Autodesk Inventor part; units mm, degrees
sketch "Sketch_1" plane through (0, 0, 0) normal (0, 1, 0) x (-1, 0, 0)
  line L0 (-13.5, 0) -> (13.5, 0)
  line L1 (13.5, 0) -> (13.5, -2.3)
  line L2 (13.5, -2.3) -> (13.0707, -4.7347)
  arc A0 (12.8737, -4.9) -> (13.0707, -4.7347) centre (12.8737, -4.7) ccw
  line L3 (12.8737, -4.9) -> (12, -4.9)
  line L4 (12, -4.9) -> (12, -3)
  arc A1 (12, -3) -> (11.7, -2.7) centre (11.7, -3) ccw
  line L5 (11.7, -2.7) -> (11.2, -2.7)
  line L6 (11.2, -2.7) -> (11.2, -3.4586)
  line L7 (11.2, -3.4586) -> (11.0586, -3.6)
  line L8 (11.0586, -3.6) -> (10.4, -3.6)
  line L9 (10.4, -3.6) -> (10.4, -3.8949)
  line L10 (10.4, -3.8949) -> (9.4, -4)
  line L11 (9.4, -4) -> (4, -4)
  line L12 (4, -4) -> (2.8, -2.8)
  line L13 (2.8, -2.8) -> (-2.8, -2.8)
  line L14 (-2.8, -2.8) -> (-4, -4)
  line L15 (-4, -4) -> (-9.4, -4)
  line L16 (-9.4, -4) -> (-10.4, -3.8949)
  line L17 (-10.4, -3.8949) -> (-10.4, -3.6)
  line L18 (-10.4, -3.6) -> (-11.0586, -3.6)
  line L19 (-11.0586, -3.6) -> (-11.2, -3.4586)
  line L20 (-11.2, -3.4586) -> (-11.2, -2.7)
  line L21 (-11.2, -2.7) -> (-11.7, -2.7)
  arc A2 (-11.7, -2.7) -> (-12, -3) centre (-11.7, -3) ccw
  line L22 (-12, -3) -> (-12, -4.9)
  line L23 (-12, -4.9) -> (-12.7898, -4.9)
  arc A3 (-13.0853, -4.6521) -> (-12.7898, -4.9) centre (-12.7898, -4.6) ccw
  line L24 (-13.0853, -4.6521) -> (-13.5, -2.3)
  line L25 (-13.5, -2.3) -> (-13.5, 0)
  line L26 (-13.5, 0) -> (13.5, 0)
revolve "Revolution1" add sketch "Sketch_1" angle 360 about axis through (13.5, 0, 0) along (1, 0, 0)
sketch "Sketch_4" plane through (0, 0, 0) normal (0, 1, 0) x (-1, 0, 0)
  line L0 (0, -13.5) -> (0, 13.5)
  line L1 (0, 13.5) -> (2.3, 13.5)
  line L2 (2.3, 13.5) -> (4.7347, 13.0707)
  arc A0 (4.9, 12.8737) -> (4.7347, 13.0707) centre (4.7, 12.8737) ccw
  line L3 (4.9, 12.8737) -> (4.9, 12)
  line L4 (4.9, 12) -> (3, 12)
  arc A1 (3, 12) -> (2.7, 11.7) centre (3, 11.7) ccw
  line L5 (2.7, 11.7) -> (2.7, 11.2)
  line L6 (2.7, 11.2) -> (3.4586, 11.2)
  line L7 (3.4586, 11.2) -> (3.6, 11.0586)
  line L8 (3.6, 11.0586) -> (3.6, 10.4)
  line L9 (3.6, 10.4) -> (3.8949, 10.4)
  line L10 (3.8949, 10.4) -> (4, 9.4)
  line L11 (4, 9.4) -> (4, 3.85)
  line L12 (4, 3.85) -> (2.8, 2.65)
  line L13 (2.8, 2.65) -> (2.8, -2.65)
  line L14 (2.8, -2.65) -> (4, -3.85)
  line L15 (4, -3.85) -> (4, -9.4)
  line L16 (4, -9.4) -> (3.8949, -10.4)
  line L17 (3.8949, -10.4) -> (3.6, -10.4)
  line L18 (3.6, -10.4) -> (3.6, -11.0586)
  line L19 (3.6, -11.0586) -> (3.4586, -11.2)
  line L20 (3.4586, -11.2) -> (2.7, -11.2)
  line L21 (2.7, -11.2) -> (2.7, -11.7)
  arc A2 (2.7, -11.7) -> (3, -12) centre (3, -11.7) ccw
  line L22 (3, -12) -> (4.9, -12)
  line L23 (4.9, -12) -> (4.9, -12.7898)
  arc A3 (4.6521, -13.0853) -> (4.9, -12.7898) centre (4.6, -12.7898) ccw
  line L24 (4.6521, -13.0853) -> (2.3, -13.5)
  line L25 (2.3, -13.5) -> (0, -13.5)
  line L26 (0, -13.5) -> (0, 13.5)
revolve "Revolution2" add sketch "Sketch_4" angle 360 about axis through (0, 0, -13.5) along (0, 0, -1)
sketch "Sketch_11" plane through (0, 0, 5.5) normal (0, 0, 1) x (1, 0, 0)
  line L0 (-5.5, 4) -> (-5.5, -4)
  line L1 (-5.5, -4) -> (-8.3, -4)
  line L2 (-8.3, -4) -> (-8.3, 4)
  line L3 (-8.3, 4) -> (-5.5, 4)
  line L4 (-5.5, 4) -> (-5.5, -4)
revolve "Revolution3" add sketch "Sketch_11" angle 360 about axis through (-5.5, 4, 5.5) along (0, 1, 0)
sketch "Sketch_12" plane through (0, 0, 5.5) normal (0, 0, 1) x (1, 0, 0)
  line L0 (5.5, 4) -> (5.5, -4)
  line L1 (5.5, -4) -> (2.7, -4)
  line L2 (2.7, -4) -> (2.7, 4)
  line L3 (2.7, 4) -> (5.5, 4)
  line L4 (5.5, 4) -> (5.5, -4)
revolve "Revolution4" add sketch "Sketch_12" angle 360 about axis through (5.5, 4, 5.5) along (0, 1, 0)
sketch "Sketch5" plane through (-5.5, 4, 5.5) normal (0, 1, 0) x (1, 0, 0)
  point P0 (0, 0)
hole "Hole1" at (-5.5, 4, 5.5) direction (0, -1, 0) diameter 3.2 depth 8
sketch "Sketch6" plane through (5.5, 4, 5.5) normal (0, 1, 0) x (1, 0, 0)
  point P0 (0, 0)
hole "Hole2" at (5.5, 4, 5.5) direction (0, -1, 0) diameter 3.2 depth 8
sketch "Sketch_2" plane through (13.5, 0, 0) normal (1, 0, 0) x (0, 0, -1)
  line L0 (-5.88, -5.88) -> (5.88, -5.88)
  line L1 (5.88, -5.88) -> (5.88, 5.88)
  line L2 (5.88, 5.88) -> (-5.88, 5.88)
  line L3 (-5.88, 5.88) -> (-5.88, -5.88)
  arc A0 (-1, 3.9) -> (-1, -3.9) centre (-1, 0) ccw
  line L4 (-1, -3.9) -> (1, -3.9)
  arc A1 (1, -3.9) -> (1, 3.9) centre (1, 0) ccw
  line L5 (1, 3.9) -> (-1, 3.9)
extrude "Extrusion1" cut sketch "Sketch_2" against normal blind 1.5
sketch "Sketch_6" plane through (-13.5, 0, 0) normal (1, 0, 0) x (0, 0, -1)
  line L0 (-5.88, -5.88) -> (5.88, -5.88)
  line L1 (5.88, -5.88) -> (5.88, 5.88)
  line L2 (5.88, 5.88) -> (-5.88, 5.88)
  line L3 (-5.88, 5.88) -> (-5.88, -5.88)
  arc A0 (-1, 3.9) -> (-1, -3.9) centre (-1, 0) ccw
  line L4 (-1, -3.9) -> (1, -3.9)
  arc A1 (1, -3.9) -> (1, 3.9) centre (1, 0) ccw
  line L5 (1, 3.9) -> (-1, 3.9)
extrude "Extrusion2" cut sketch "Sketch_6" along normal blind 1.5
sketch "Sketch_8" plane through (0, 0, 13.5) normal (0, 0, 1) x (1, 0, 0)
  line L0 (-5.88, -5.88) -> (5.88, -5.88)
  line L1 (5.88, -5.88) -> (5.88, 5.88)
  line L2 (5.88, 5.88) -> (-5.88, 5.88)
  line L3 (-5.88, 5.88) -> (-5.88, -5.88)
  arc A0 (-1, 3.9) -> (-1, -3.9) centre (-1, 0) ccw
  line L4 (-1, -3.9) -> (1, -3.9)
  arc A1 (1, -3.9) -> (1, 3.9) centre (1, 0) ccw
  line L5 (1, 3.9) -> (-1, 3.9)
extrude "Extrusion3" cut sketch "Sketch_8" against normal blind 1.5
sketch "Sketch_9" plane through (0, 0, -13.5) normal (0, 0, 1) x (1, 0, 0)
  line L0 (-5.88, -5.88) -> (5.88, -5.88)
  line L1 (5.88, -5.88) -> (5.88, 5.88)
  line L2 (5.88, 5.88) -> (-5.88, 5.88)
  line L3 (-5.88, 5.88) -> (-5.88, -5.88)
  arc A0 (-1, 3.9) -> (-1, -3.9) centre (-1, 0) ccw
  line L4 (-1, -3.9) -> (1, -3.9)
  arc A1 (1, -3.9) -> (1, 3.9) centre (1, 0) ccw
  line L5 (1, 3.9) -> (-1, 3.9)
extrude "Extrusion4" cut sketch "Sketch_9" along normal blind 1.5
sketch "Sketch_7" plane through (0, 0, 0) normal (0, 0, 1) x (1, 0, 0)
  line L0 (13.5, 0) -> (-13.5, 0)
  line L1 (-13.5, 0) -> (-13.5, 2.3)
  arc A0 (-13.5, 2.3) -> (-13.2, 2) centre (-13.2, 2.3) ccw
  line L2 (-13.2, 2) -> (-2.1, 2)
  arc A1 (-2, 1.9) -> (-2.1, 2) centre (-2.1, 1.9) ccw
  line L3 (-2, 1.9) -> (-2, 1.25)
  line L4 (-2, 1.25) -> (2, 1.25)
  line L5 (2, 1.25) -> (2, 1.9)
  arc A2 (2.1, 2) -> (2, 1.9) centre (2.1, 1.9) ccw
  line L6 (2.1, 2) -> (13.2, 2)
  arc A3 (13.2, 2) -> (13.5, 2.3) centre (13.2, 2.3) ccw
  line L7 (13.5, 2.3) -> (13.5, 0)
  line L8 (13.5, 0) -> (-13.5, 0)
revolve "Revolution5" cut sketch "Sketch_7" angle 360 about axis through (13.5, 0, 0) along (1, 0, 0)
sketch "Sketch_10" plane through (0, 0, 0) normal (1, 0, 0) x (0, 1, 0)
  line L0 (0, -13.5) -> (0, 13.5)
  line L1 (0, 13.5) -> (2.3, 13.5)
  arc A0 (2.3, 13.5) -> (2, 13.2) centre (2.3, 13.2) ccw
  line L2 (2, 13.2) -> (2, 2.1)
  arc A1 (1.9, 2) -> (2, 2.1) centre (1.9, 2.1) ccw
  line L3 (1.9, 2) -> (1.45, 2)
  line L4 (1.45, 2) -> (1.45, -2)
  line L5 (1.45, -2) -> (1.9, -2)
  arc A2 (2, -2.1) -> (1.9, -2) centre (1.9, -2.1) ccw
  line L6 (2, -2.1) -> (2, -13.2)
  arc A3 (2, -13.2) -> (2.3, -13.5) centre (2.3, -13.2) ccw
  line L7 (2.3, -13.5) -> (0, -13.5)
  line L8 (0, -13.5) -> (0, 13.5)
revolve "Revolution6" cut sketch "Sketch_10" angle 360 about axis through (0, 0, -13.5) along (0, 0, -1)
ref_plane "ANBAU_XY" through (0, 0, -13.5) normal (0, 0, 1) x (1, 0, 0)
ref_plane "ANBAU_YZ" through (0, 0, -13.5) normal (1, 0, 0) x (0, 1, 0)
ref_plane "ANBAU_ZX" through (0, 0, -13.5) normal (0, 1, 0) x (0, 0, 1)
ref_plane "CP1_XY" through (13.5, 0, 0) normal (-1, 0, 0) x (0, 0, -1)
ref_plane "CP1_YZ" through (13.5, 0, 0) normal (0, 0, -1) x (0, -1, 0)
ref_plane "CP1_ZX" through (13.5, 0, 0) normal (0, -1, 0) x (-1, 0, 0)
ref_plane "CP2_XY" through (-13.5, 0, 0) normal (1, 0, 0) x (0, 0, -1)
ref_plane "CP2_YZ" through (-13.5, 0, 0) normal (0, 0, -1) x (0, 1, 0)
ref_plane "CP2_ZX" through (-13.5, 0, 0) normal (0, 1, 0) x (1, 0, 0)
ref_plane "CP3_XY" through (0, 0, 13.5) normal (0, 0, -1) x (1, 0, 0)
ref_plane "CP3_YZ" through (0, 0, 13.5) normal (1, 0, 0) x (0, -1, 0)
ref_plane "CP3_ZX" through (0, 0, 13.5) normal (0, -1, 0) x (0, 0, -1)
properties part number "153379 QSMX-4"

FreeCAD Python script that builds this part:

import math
import FreeCAD as App
import Part
import Sketcher
from FreeCAD import Vector
Q = App.Units.Quantity


def add_polygon(sketch, points):
    """Adds a closed chain of lines whose ends are joined by coincident constraints."""
    first, n = sketch.GeometryCount, len(points)
    for a, b in zip(points, points[1:] + points[:1]):
        sketch.addGeometry(Part.LineSegment(App.Vector(*a, 0), App.Vector(*b, 0)), False)
    for i in range(n):
        sketch.addConstraint(Sketcher.Constraint("Coincident", first + i, 2, first + (i + 1) % n, 1))

doc = App.newDocument("Part")
body = doc.addObject("PartDesign::Body", "Body")

sketch1 = body.newObject("Sketcher::SketchObject", "Sketch")
sketch1.AttachmentSupport = (doc.getObject("XZ_Plane"), [""])
sketch1.MapMode = "FlatFace"
sketch1.addGeometry([
    Part.LineSegment(Vector(-13.5, 0, 0), Vector(13.5, 0, 0)),
    Part.LineSegment(Vector(13.5, 0, 0), Vector(13.5, -2.3, 0)),
    Part.LineSegment(Vector(13.5, -2.3, 0), Vector(13.0853, -4.6521, 0)),
    Part.ArcOfCircle(Part.Circle(Vector(12.7898, -4.6, 0), Vector(0, 0, 1), 0.300058), math.radians(-90), math.radians(-9.999131)),
    Part.LineSegment(Vector(12.7898, -4.9, 0), Vector(12, -4.9, 0)),
    Part.LineSegment(Vector(12, -4.9, 0), Vector(12, -3, 0)),
    Part.ArcOfCircle(Part.Circle(Vector(11.7, -3, 0), Vector(0, 0, 1), 0.3), math.radians(0), math.radians(90)),
    Part.LineSegment(Vector(11.7, -2.7, 0), Vector(11.2, -2.7, 0)),
    Part.LineSegment(Vector(11.2, -2.7, 0), Vector(11.2, -3.4586, 0)),
    Part.LineSegment(Vector(11.2, -3.4586, 0), Vector(11.0586, -3.6, 0)),
    Part.LineSegment(Vector(11.0586, -3.6, 0), Vector(10.4, -3.6, 0)),
    Part.LineSegment(Vector(10.4, -3.6, 0), Vector(10.4, -3.8949, 0)),
    Part.LineSegment(Vector(10.4, -3.8949, 0), Vector(9.4, -4, 0)),
    Part.LineSegment(Vector(9.4, -4, 0), Vector(4, -4, 0)),
    Part.LineSegment(Vector(4, -4, 0), Vector(2.8, -2.8, 0)),
    Part.LineSegment(Vector(2.8, -2.8, 0), Vector(-2.8, -2.8, 0)),
    Part.LineSegment(Vector(-2.8, -2.8, 0), Vector(-4, -4, 0)),
    Part.LineSegment(Vector(-4, -4, 0), Vector(-9.4, -4, 0)),
    Part.LineSegment(Vector(-9.4, -4, 0), Vector(-10.4, -3.8949, 0)),
    Part.LineSegment(Vector(-10.4, -3.8949, 0), Vector(-10.4, -3.6, 0)),
    Part.LineSegment(Vector(-10.4, -3.6, 0), Vector(-11.0586, -3.6, 0)),
    Part.LineSegment(Vector(-11.0586, -3.6, 0), Vector(-11.2, -3.4586, 0)),
    Part.LineSegment(Vector(-11.2, -3.4586, 0), Vector(-11.2, -2.7, 0)),
    Part.LineSegment(Vector(-11.2, -2.7, 0), Vector(-11.7, -2.7, 0)),
    Part.ArcOfCircle(Part.Circle(Vector(-11.7, -3, 0), Vector(0, 0, 1), 0.3), math.radians(90), math.radians(180)),
    Part.LineSegment(Vector(-12, -3, 0), Vector(-12, -4.9, 0)),
    Part.LineSegment(Vector(-12, -4.9, 0), Vector(-12.8737, -4.9, 0)),
    Part.ArcOfCircle(Part.Circle(Vector(-12.8737, -4.7, 0), Vector(0, 0, 1), 0.2), math.radians(-170.010272), math.radians(-90)),
    Part.LineSegment(Vector(-13.0707, -4.7347, 0), Vector(-13.5, -2.3, 0)),
    Part.LineSegment(Vector(-13.5, -2.3, 0), Vector(-13.5, 0, 0)),
], False)
sketch1.addConstraint([
    Sketcher.Constraint("Coincident", 0, 2, 1, 1),
    Sketcher.Constraint("Coincident", 1, 2, 2, 1),
    Sketcher.Constraint("Tangent", 2, 2, 3, 2),
    Sketcher.Constraint("Tangent", 3, 1, 4, 1),
    Sketcher.Constraint("Coincident", 4, 2, 5, 1),
    Sketcher.Constraint("Tangent", 5, 2, 6, 1),
    Sketcher.Constraint("Tangent", 6, 2, 7, 1),
    Sketcher.Constraint("Coincident", 7, 2, 8, 1),
    Sketcher.Constraint("Coincident", 8, 2, 9, 1),
    Sketcher.Constraint("Coincident", 9, 2, 10, 1),
    Sketcher.Constraint("Coincident", 10, 2, 11, 1),
    Sketcher.Constraint("Coincident", 11, 2, 12, 1),
    Sketcher.Constraint("Coincident", 12, 2, 13, 1),
    Sketcher.Constraint("Coincident", 13, 2, 14, 1),
    Sketcher.Constraint("Coincident", 14, 2, 15, 1),
    Sketcher.Constraint("Coincident", 15, 2, 16, 1),
    Sketcher.Constraint("Coincident", 16, 2, 17, 1),
    Sketcher.Constraint("Coincident", 17, 2, 18, 1),
    Sketcher.Constraint("Coincident", 18, 2, 19, 1),
    Sketcher.Constraint("Coincident", 19, 2, 20, 1),
    Sketcher.Constraint("Coincident", 20, 2, 21, 1),
    Sketcher.Constraint("Coincident", 21, 2, 22, 1),
    Sketcher.Constraint("Coincident", 22, 2, 23, 1),
    Sketcher.Constraint("Tangent", 23, 2, 24, 1),
    Sketcher.Constraint("Tangent", 24, 2, 25, 1),
    Sketcher.Constraint("Coincident", 25, 2, 26, 1),
    Sketcher.Constraint("Tangent", 26, 2, 27, 2),
    Sketcher.Constraint("Tangent", 27, 1, 28, 1),
    Sketcher.Constraint("Coincident", 28, 2, 29, 1),
    Sketcher.Constraint("Coincident", 29, 2, 0, 1),
    Sketcher.Constraint("Horizontal", 0),
    Sketcher.Constraint("Vertical", 1),
    Sketcher.Constraint("Horizontal", 4),
    Sketcher.Constraint("Vertical", 5),
    Sketcher.Constraint("Horizontal", 7),
    Sketcher.Constraint("Vertical", 8),
    Sketcher.Constraint("Horizontal", 10),
    Sketcher.Constraint("Vertical", 11),
    Sketcher.Constraint("Horizontal", 13),
    Sketcher.Constraint("Horizontal", 15),
    Sketcher.Constraint("Horizontal", 17),
    Sketcher.Constraint("Vertical", 19),
    Sketcher.Constraint("Horizontal", 20),
    Sketcher.Constraint("Vertical", 22),
    Sketcher.Constraint("Horizontal", 23),
    Sketcher.Constraint("Vertical", 25),
    Sketcher.Constraint("Horizontal", 26),
    Sketcher.Constraint("Vertical", 29),
    Sketcher.Constraint("Equal", 3, 6),
    Sketcher.Constraint("Equal", 6, 24),
    Sketcher.Constraint("Symmetric", 0, 2, 29, 2, -1, 1),
    Sketcher.Constraint("Symmetric", 6, 3, 24, 3, -2),
    Sketcher.Constraint("Symmetric", 13, 2, 16, 2, -2),
    Sketcher.Constraint("Symmetric", 11, 2, 18, 2, -2),
    Sketcher.Constraint("Symmetric", 9, 2, 20, 2, -2),
    Sketcher.Constraint("Symmetric", 8, 2, 21, 2, -2),
    Sketcher.Constraint("Perpendicular", 9, 14),
    Sketcher.Constraint("Perpendicular", 14, 16),
    Sketcher.Constraint("Perpendicular", 16, 21),
    Sketcher.Constraint("Horizontal", 4, 2, 25, 2),
    Sketcher.Constraint("Horizontal", 1, 2, 28, 2),
    Sketcher.Constraint("Equal", 13, 17),
    Sketcher.Constraint("Radius", 3, Q("0.3 mm")),
    Sketcher.Constraint("Radius", 27, Q("0.2 mm")),
    Sketcher.Constraint("DistanceX", 0, 1, 0, 2, Q("27 mm")),
    Sketcher.Constraint("Angle", 2, Q("-99.999 deg")),
    Sketcher.Constraint("Angle", 12, Q("-174.0002 deg")),
    Sketcher.Constraint("Angle", 28, Q("100 deg")),
    Sketcher.Constraint("DistanceX", 7, 2, 7, 1, Q("0.5 mm")),
    Sketcher.Constraint("DistanceX", 13, 2, 13, 1, Q("5.4 mm")),
    Sketcher.Constraint("DistanceX", 15, 2, 15, 1, Q("5.6 mm")),
    Sketcher.Constraint("DistanceY", 1, 2, 1, 1, Q("2.3 mm")),
    Sketcher.Constraint("DistanceY", 5, 1, 5, 2, Q("1.9 mm")),
    Sketcher.Constraint("DistanceY", 6, 3, -1, 1, Q("3 mm")),
    Sketcher.Constraint("DistanceX", -1, 1, 4, 2, Q("12 mm")),
    Sketcher.Constraint("DistanceY", 12, 2, -1, 1, Q("4 mm")),
    Sketcher.Constraint("DistanceX", -1, 1, 13, 2, Q("4 mm")),
    Sketcher.Constraint("DistanceX", 12, 2, 11, 2, Q("1 mm")),
    Sketcher.Constraint("Distance", 9, Q("0.2 mm")),
    Sketcher.Constraint("DistanceY", 9, 2, -1, 1, Q("3.6 mm")),
])
revolution = body.newObject("PartDesign::Revolution", "Revolution")
revolution.Profile = sketch1
revolution.ReferenceAxis = (sketch1, ["H_Axis"])
revolution.Angle = 360

sketch2 = body.newObject("Sketcher::SketchObject", "Sketch001")
sketch2.AttachmentSupport = (doc.getObject("XZ_Plane"), [""])
sketch2.MapMode = "FlatFace"
sketch2.addGeometry([
    Part.LineSegment(Vector(0, 13.5, 0), Vector(0, -13.5, 0)),
    Part.LineSegment(Vector(0, -13.5, 0), Vector(-2.3, -13.5, 0)),
    Part.LineSegment(Vector(-2.3, -13.5, 0), Vector(-4.6521, -13.0853, 0)),
    Part.ArcOfCircle(Part.Circle(Vector(-4.6, -12.7898, 0), Vector(0, 0, 1), 0.300058), math.radians(180), math.radians(260.000869)),
    Part.LineSegment(Vector(-4.9, -12.7898, 0), Vector(-4.9, -12, 0)),
    Part.LineSegment(Vector(-4.9, -12, 0), Vector(-3, -12, 0)),
    Part.ArcOfCircle(Part.Circle(Vector(-3, -11.7, 0), Vector(0, 0, 1), 0.3), math.radians(-90), math.radians(0)),
    Part.LineSegment(Vector(-2.7, -11.7, 0), Vector(-2.7, -11.2, 0)),
    Part.LineSegment(Vector(-2.7, -11.2, 0), Vector(-3.4586, -11.2, 0)),
    Part.LineSegment(Vector(-3.4586, -11.2, 0), Vector(-3.6, -11.0586, 0)),
    Part.LineSegment(Vector(-3.6, -11.0586, 0), Vector(-3.6, -10.4, 0)),
    Part.LineSegment(Vector(-3.6, -10.4, 0), Vector(-3.8949, -10.4, 0)),
    Part.LineSegment(Vector(-3.8949, -10.4, 0), Vector(-4, -9.4, 0)),
    Part.LineSegment(Vector(-4, -9.4, 0), Vector(-4, -3.85, 0)),
    Part.LineSegment(Vector(-4, -3.85, 0), Vector(-2.8, -2.65, 0)),
    Part.LineSegment(Vector(-2.8, -2.65, 0), Vector(-2.8, 2.65, 0)),
    Part.LineSegment(Vector(-2.8, 2.65, 0), Vector(-4, 3.85, 0)),
    Part.LineSegment(Vector(-4, 3.85, 0), Vector(-4, 9.4, 0)),
    Part.LineSegment(Vector(-4, 9.4, 0), Vector(-3.8949, 10.4, 0)),
    Part.LineSegment(Vector(-3.8949, 10.4, 0), Vector(-3.6, 10.4, 0)),
    Part.LineSegment(Vector(-3.6, 10.4, 0), Vector(-3.6, 11.0586, 0)),
    Part.LineSegment(Vector(-3.6, 11.0586, 0), Vector(-3.4586, 11.2, 0)),
    Part.LineSegment(Vector(-3.4586, 11.2, 0), Vector(-2.7, 11.2, 0)),
    Part.LineSegment(Vector(-2.7, 11.2, 0), Vector(-2.7, 11.7, 0)),
    Part.ArcOfCircle(Part.Circle(Vector(-3, 11.7, 0), Vector(0, 0, 1), 0.3), math.radians(0), math.radians(90)),
    Part.LineSegment(Vector(-3, 12, 0), Vector(-4.9, 12, 0)),
    Part.LineSegment(Vector(-4.9, 12, 0), Vector(-4.9, 12.8737, 0)),
    Part.ArcOfCircle(Part.Circle(Vector(-4.7, 12.8737, 0), Vector(0, 0, 1), 0.2), math.radians(99.989728), math.radians(180)),
    Part.LineSegment(Vector(-4.7347, 13.0707, 0), Vector(-2.3, 13.5, 0)),
    Part.LineSegment(Vector(-2.3, 13.5, 0), Vector(0, 13.5, 0)),
], False)
sketch2.addConstraint([
    Sketcher.Constraint("Coincident", 0, 2, 1, 1),
    Sketcher.Constraint("Coincident", 1, 2, 2, 1),
    Sketcher.Constraint("Tangent", 2, 2, 3, 2),
    Sketcher.Constraint("Tangent", 3, 1, 4, 1),
    Sketcher.Constraint("Coincident", 4, 2, 5, 1),
    Sketcher.Constraint("Tangent", 5, 2, 6, 1),
    Sketcher.Constraint("Tangent", 6, 2, 7, 1),
    Sketcher.Constraint("Coincident", 7, 2, 8, 1),
    Sketcher.Constraint("Coincident", 8, 2, 9, 1),
    Sketcher.Constraint("Coincident", 9, 2, 10, 1),
    Sketcher.Constraint("Coincident", 10, 2, 11, 1),
    Sketcher.Constraint("Coincident", 11, 2, 12, 1),
    Sketcher.Constraint("Coincident", 12, 2, 13, 1),
    Sketcher.Constraint("Coincident", 13, 2, 14, 1),
    Sketcher.Constraint("Coincident", 14, 2, 15, 1),
    Sketcher.Constraint("Coincident", 15, 2, 16, 1),
    Sketcher.Constraint("Coincident", 16, 2, 17, 1),
    Sketcher.Constraint("Coincident", 17, 2, 18, 1),
    Sketcher.Constraint("Coincident", 18, 2, 19, 1),
    Sketcher.Constraint("Coincident", 19, 2, 20, 1),
    Sketcher.Constraint("Coincident", 20, 2, 21, 1),
    Sketcher.Constraint("Coincident", 21, 2, 22, 1),
    Sketcher.Constraint("Coincident", 22, 2, 23, 1),
    Sketcher.Constraint("Tangent", 23, 2, 24, 1),
    Sketcher.Constraint("Tangent", 24, 2, 25, 1),
    Sketcher.Constraint("Coincident", 25, 2, 26, 1),
    Sketcher.Constraint("Tangent", 26, 2, 27, 2),
    Sketcher.Constraint("Tangent", 27, 1, 28, 1),
    Sketcher.Constraint("Coincident", 28, 2, 29, 1),
    Sketcher.Constraint("Coincident", 29, 2, 0, 1),
    Sketcher.Constraint("Vertical", 0),
    Sketcher.Constraint("Horizontal", 1),
    Sketcher.Constraint("Vertical", 4),
    Sketcher.Constraint("Horizontal", 5),
    Sketcher.Constraint("Vertical", 7),
    Sketcher.Constraint("Horizontal", 8),
    Sketcher.Constraint("Vertical", 10),
    Sketcher.Constraint("Horizontal", 11),
    Sketcher.Constraint("Vertical", 13),
    Sketcher.Constraint("Vertical", 15),
    Sketcher.Constraint("Vertical", 17),
    Sketcher.Constraint("Horizontal", 19),
    Sketcher.Constraint("Vertical", 20),
    Sketcher.Constraint("Horizontal", 22),
    Sketcher.Constraint("Vertical", 23),
    Sketcher.Constraint("Horizontal", 25),
    Sketcher.Constraint("Vertical", 26),
    Sketcher.Constraint("Horizontal", 29),
    Sketcher.Constraint("Equal", 3, 6),
    Sketcher.Constraint("Equal", 6, 24),
    Sketcher.Constraint("Symmetric", 0, 2, 29, 2, -1, 1),
    Sketcher.Constraint("Symmetric", 6, 3, 24, 3, -1),
    Sketcher.Constraint("Symmetric", 13, 2, 16, 2, -1),
    Sketcher.Constraint("Symmetric", 11, 2, 18, 2, -1),
    Sketcher.Constraint("Symmetric", 9, 2, 20, 2, -1),
    Sketcher.Constraint("Symmetric", 8, 2, 21, 2, -1),
    Sketcher.Constraint("Perpendicular", 9, 14),
    Sketcher.Constraint("Perpendicular", 14, 16),
    Sketcher.Constraint("Perpendicular", 16, 21),
    Sketcher.Constraint("Vertical", 4, 2, 25, 2),
    Sketcher.Constraint("Vertical", 1, 2, 28, 2),
    Sketcher.Constraint("Equal", 13, 17),
    Sketcher.Constraint("Radius", 3, Q("0.3 mm")),
    Sketcher.Constraint("Radius", 27, Q("0.2 mm")),
    Sketcher.Constraint("DistanceY", 0, 2, 0, 1, Q("27 mm")),
    Sketcher.Constraint("Angle", 2, Q("170.001 deg")),
    Sketcher.Constraint("Angle", 12, Q("95.9998 deg")),
    Sketcher.Constraint("Angle", 28, Q("10 deg")),
    Sketcher.Constraint("DistanceX", 1, 2, 1, 1, Q("2.3 mm")),
    Sketcher.Constraint("DistanceX", 5, 1, 5, 2, Q("1.9 mm")),
    Sketcher.Constraint("DistanceY", 7, 1, 7, 2, Q("0.5 mm")),
    Sketcher.Constraint("DistanceY", 15, 1, 15, 2, Q("5.3 mm")),
    Sketcher.Constraint("DistanceX", 6, 3, -1, 1, Q("3 mm")),
    Sketcher.Constraint("DistanceY", 4, 2, -1, 1, Q("12 mm")),
    Sketcher.Constraint("DistanceX", 12, 2, -1, 1, Q("4 mm")),
    Sketcher.Constraint("DistanceY", 11, 2, 12, 2, Q("1 mm")),
    Sketcher.Constraint("Distance", 9, Q("0.2 mm")),
    Sketcher.Constraint("DistanceY", 13, 1, 13, 2, Q("5.55 mm")),
    Sketcher.Constraint("DistanceX", 9, 2, -1, 1, Q("3.6 mm")),
    Sketcher.Constraint("DistanceY", 10, 2, -1, 1, Q("10.4 mm")),
])
revolution2 = body.newObject("PartDesign::Revolution", "Revolution001")
revolution2.Profile = sketch2
revolution2.ReferenceAxis = (sketch2, ["V_Axis"])
revolution2.Angle = 360

sketch3 = body.newObject("Sketcher::SketchObject", "Sketch002")
sketch3.AttachmentSupport = (doc.getObject("XY_Plane"), [""])
sketch3.MapMode = "FlatFace"
sketch3.AttachmentOffset = App.Placement(Vector(0, 0, 5.5), App.Rotation())
add_polygon(sketch3, [(-5.5, -4), (-5.5, 4), (-8.3, 4), (-8.3, -4)])
sketch3.addGeometry(Part.LineSegment(Vector(-5.5, -4, 0), Vector(-5.5, 4, 0)), True)
sketch3.addConstraint([
    Sketcher.Constraint("Vertical", 0),
    Sketcher.Constraint("Horizontal", 1),
    Sketcher.Constraint("Vertical", 2),
    Sketcher.Constraint("Horizontal", 3),
    Sketcher.Constraint("Vertical", 4),
    Sketcher.Constraint("Coincident", 4, 1, 3, 2),
    Sketcher.Constraint("Horizontal", 1, 2, 4, 2),
    Sketcher.Constraint("DistanceY", 0, 1, 0, 2, Q("8 mm")),
    Sketcher.Constraint("DistanceX", 1, 2, 1, 1, Q("2.8 mm")),
    Sketcher.Constraint("DistanceY", -1, 1, 0, 2, Q("4 mm")),
    Sketcher.Constraint("DistanceX", 0, 2, -1, 1, Q("5.5 mm")),
])
revolution3 = body.newObject("PartDesign::Revolution", "Revolution002")
revolution3.Profile = sketch3
revolution3.ReferenceAxis = (sketch3, ["Axis0"])
revolution3.Angle = 360

sketch4 = body.newObject("Sketcher::SketchObject", "Sketch003")
sketch4.AttachmentSupport = (doc.getObject("XY_Plane"), [""])
sketch4.MapMode = "FlatFace"
sketch4.AttachmentOffset = App.Placement(Vector(0, 0, 5.5), App.Rotation())
add_polygon(sketch4, [(5.5, -4), (5.5, 4), (2.7, 4), (2.7, -4)])
sketch4.addGeometry(Part.LineSegment(Vector(5.5, -4, 0), Vector(5.5, 4, 0)), True)
sketch4.addConstraint([
    Sketcher.Constraint("Vertical", 0),
    Sketcher.Constraint("Horizontal", 1),
    Sketcher.Constraint("Vertical", 2),
    Sketcher.Constraint("Horizontal", 3),
    Sketcher.Constraint("Vertical", 4),
    Sketcher.Constraint("Coincident", 4, 1, 3, 2),
    Sketcher.Constraint("Horizontal", 1, 2, 4, 2),
    Sketcher.Constraint("DistanceY", 0, 1, 0, 2, Q("8 mm")),
    Sketcher.Constraint("DistanceX", 1, 2, 1, 1, Q("2.8 mm")),
    Sketcher.Constraint("DistanceY", -1, 1, 0, 2, Q("4 mm")),
    Sketcher.Constraint("DistanceX", -1, 1, 0, 2, Q("5.5 mm")),
])
revolution4 = body.newObject("PartDesign::Revolution", "Revolution003")
revolution4.Profile = sketch4
revolution4.ReferenceAxis = (sketch4, ["Axis0"])
revolution4.Angle = 360

sketch5 = body.newObject("Sketcher::SketchObject", "Sketch004")
sketch5.AttachmentSupport = (doc.getObject("XZ_Plane"), [""])
sketch5.MapMode = "FlatFace"
sketch5.AttachmentOffset = App.Placement(Vector(0, 0, -4), App.Rotation())
sketch5.addGeometry(Part.Circle(Vector(-5.5, 5.5, 0), Vector(0, 0, 1), 1.6), False)
sketch5.addConstraint([
    Sketcher.Constraint("Diameter", 0, Q("3.2 mm")),
    Sketcher.Constraint("DistanceX", 0, 3, -1, 1, Q("5.5 mm")),
    Sketcher.Constraint("DistanceY", -1, 1, 0, 3, Q("5.5 mm")),
])
doc.recompute()
hole = body.newObject("PartDesign::Hole", "Hole")
hole.Profile = sketch5
hole.ThreadType = "None"
hole.Diameter = 3.2
hole.DepthType = "Dimension"
hole.Depth = 8
hole.DrillPoint = "Flat"
hole.Reversed = True

sketch6 = body.newObject("Sketcher::SketchObject", "Sketch005")
sketch6.AttachmentSupport = (doc.getObject("XZ_Plane"), [""])
sketch6.MapMode = "FlatFace"
sketch6.AttachmentOffset = App.Placement(Vector(0, 0, -4), App.Rotation())
sketch6.addGeometry(Part.Circle(Vector(5.5, 5.5, 0), Vector(0, 0, 1), 1.6), False)
sketch6.addConstraint([
    Sketcher.Constraint("Diameter", 0, Q("3.2 mm")),
    Sketcher.Constraint("DistanceX", -1, 1, 0, 3, Q("5.5 mm")),
    Sketcher.Constraint("DistanceY", -1, 1, 0, 3, Q("5.5 mm")),
])
doc.recompute()
hole2 = body.newObject("PartDesign::Hole", "Hole001")
hole2.Profile = sketch6
hole2.ThreadType = "None"
hole2.Diameter = 3.2
hole2.DepthType = "Dimension"
hole2.Depth = 8
hole2.DrillPoint = "Flat"
hole2.Reversed = True

sketch7 = body.newObject("Sketcher::SketchObject", "Sketch006")
sketch7.AttachmentSupport = (doc.getObject("YZ_Plane"), [""])
sketch7.MapMode = "FlatFace"
sketch7.AttachmentOffset = App.Placement(Vector(0, 0, 13.5), App.Rotation())
add_polygon(sketch7, [(5.88, 5.88), (-5.88, 5.88), (-5.88, -5.88), (5.88, -5.88)])
sketch7.addGeometry(Part.ArcOfCircle(Part.Circle(Vector(0, 1, 0), Vector(0, 0, 1), 3.9), math.radians(0), math.radians(180)), False)
sketch7.addGeometry(Part.LineSegment(Vector(3.9, 1, 0), Vector(3.9, -1, 0)), False)
sketch7.addGeometry(Part.ArcOfCircle(Part.Circle(Vector(0, -1, 0), Vector(0, 0, 1), 3.9), math.radians(180), math.radians(360)), False)
sketch7.addGeometry(Part.LineSegment(Vector(-3.9, -1, 0), Vector(-3.9, 1, 0)), False)
sketch7.addConstraint([
    Sketcher.Constraint("Tangent", 4, 1, 5, 1),
    Sketcher.Constraint("Tangent", 5, 2, 6, 2),
    Sketcher.Constraint("Tangent", 6, 1, 7, 1),
    Sketcher.Constraint("Tangent", 7, 2, 4, 2),
    Sketcher.Constraint("Horizontal", 0),
    Sketcher.Constraint("Vertical", 1),
    Sketcher.Constraint("Horizontal", 2),
    Sketcher.Constraint("Vertical", 3),
    Sketcher.Constraint("Vertical", 5),
    Sketcher.Constraint("Vertical", 7),
    Sketcher.Constraint("Symmetric", 4, 3, 6, 3, -1, 1),
    Sketcher.Constraint("Symmetric", 0, 2, 2, 2, -1, 1),
    Sketcher.Constraint("Equal", 2, 1),
    Sketcher.Constraint("Radius", 4, Q("3.9 mm")),
    Sketcher.Constraint("DistanceY", 5, 2, 5, 1, Q("2 mm")),
    Sketcher.Constraint("DistanceX", 0, 2, 0, 1, Q("11.76 mm")),
])
pocket1 = body.newObject("PartDesign::Pocket", "Pocket")
pocket1.Profile = sketch7
pocket1.Length = 1.5

sketch8 = body.newObject("Sketcher::SketchObject", "Sketch007")
sketch8.AttachmentSupport = (doc.getObject("YZ_Plane"), [""])
sketch8.MapMode = "FlatFace"
sketch8.AttachmentOffset = App.Placement(Vector(0, 0, -13.5), App.Rotation())
add_polygon(sketch8, [(5.88, 5.88), (-5.88, 5.88), (-5.88, -5.88), (5.88, -5.88)])
sketch8.addGeometry(Part.ArcOfCircle(Part.Circle(Vector(0, 1, 0), Vector(0, 0, 1), 3.9), math.radians(0), math.radians(180)), False)
sketch8.addGeometry(Part.LineSegment(Vector(3.9, 1, 0), Vector(3.9, -1, 0)), False)
sketch8.addGeometry(Part.ArcOfCircle(Part.Circle(Vector(0, -1, 0), Vector(0, 0, 1), 3.9), math.radians(180), math.radians(360)), False)
sketch8.addGeometry(Part.LineSegment(Vector(-3.9, -1, 0), Vector(-3.9, 1, 0)), False)
sketch8.addConstraint([
    Sketcher.Constraint("Tangent", 4, 1, 5, 1),
    Sketcher.Constraint("Tangent", 5, 2, 6, 2),
    Sketcher.Constraint("Tangent", 6, 1, 7, 1),
    Sketcher.Constraint("Tangent", 7, 2, 4, 2),
    Sketcher.Constraint("Horizontal", 0),
    Sketcher.Constraint("Vertical", 1),
    Sketcher.Constraint("Horizontal", 2),
    Sketcher.Constraint("Vertical", 3),
    Sketcher.Constraint("Vertical", 5),
    Sketcher.Constraint("Vertical", 7),
    Sketcher.Constraint("Symmetric", 4, 3, 6, 3, -1, 1),
    Sketcher.Constraint("Symmetric", 0, 2, 2, 2, -1, 1),
    Sketcher.Constraint("Equal", 2, 1),
    Sketcher.Constraint("Radius", 4, Q("3.9 mm")),
    Sketcher.Constraint("DistanceY", 5, 2, 5, 1, Q("2 mm")),
    Sketcher.Constraint("DistanceX", 0, 2, 0, 1, Q("11.76 mm")),
])
pocket2 = body.newObject("PartDesign::Pocket", "Pocket001")
pocket2.Profile = sketch8
pocket2.Length = 1.5
pocket2.Reversed = True

sketch9 = body.newObject("Sketcher::SketchObject", "Sketch008")
sketch9.AttachmentSupport = (doc.getObject("XY_Plane"), [""])
sketch9.MapMode = "FlatFace"
sketch9.AttachmentOffset = App.Placement(Vector(0, 0, 13.5), App.Rotation())
add_polygon(sketch9, [(-5.88, 5.88), (-5.88, -5.88), (5.88, -5.88), (5.88, 5.88)])
sketch9.addGeometry(Part.ArcOfCircle(Part.Circle(Vector(-1, 0, 0), Vector(0, 0, 1), 3.9), math.radians(90), math.radians(270)), False)
sketch9.addGeometry(Part.LineSegment(Vector(-1, 3.9, 0), Vector(1, 3.9, 0)), False)
sketch9.addGeometry(Part.ArcOfCircle(Part.Circle(Vector(1, 0, 0), Vector(0, 0, 1), 3.9), math.radians(-90), math.radians(90)), False)
sketch9.addGeometry(Part.LineSegment(Vector(1, -3.9, 0), Vector(-1, -3.9, 0)), False)
sketch9.addConstraint([
    Sketcher.Constraint("Tangent", 4, 1, 5, 1),
    Sketcher.Constraint("Tangent", 5, 2, 6, 2),
    Sketcher.Constraint("Tangent", 6, 1, 7, 1),
    Sketcher.Constraint("Tangent", 7, 2, 4, 2),
    Sketcher.Constraint("Vertical", 0),
    Sketcher.Constraint("Horizontal", 1),
    Sketcher.Constraint("Vertical", 2),
    Sketcher.Constraint("Horizontal", 3),
    Sketcher.Constraint("Horizontal", 5),
    Sketcher.Constraint("Horizontal", 7),
    Sketcher.Constraint("Symmetric", 4, 3, 6, 3, -1, 1),
    Sketcher.Constraint("Symmetric", 0, 2, 2, 2, -1, 1),
    Sketcher.Constraint("Equal", 3, 0),
    Sketcher.Constraint("Radius", 4, Q("3.9 mm")),
    Sketcher.Constraint("DistanceX", 5, 1, 5, 2, Q("2 mm")),
    Sketcher.Constraint("DistanceX", 1, 1, 1, 2, Q("11.76 mm")),
])
pocket3 = body.newObject("PartDesign::Pocket", "Pocket002")
pocket3.Profile = sketch9
pocket3.Length = 1.5

sketch10 = body.newObject("Sketcher::SketchObject", "Sketch009")
sketch10.AttachmentSupport = (doc.getObject("XY_Plane"), [""])
sketch10.MapMode = "FlatFace"
sketch10.AttachmentOffset = App.Placement(Vector(0, 0, -13.5), App.Rotation())
add_polygon(sketch10, [(-5.88, 5.88), (-5.88, -5.88), (5.88, -5.88), (5.88, 5.88)])
sketch10.addGeometry(Part.ArcOfCircle(Part.Circle(Vector(-1, 0, 0), Vector(0, 0, 1), 3.9), math.radians(90), math.radians(270)), False)
sketch10.addGeometry(Part.LineSegment(Vector(-1, 3.9, 0), Vector(1, 3.9, 0)), False)
sketch10.addGeometry(Part.ArcOfCircle(Part.Circle(Vector(1, 0, 0), Vector(0, 0, 1), 3.9), math.radians(-90), math.radians(90)), False)
sketch10.addGeometry(Part.LineSegment(Vector(1, -3.9, 0), Vector(-1, -3.9, 0)), False)
sketch10.addConstraint([
    Sketcher.Constraint("Tangent", 4, 1, 5, 1),
    Sketcher.Constraint("Tangent", 5, 2, 6, 2),
    Sketcher.Constraint("Tangent", 6, 1, 7, 1),
    Sketcher.Constraint("Tangent", 7, 2, 4, 2),
    Sketcher.Constraint("Vertical", 0),
    Sketcher.Constraint("Horizontal", 1),
    Sketcher.Constraint("Vertical", 2),
    Sketcher.Constraint("Horizontal", 3),
    Sketcher.Constraint("Horizontal", 5),
    Sketcher.Constraint("Horizontal", 7),
    Sketcher.Constraint("Symmetric", 4, 3, 6, 3, -1, 1),
    Sketcher.Constraint("Symmetric", 0, 2, 2, 2, -1, 1),
    Sketcher.Constraint("Equal", 3, 0),
    Sketcher.Constraint("Radius", 4, Q("3.9 mm")),
    Sketcher.Constraint("DistanceX", 5, 1, 5, 2, Q("2 mm")),
    Sketcher.Constraint("DistanceX", 1, 1, 1, 2, Q("11.76 mm")),
])
pocket4 = body.newObject("PartDesign::Pocket", "Pocket003")
pocket4.Profile = sketch10
pocket4.Length = 1.5
pocket4.Reversed = True

sketch11 = body.newObject("Sketcher::SketchObject", "Sketch010")
sketch11.AttachmentSupport = (doc.getObject("XY_Plane"), [""])
sketch11.MapMode = "FlatFace"
sketch11.addGeometry([
    Part.LineSegment(Vector(-13.5, 0, 0), Vector(13.5, 0, 0)),
    Part.LineSegment(Vector(13.5, 0, 0), Vector(13.5, 2.3, 0)),
    Part.ArcOfCircle(Part.Circle(Vector(13.2, 2.3, 0), Vector(0, 0, 1), 0.3), math.radians(-90), math.radians(0)),
    Part.LineSegment(Vector(13.2, 2, 0), Vector(2.1, 2, 0)),
    Part.ArcOfCircle(Part.Circle(Vector(2.1, 1.9, 0), Vector(0, 0, 1), 0.1), math.radians(90), math.radians(180)),
    Part.LineSegment(Vector(2, 1.9, 0), Vector(2, 1.25, 0)),
    Part.LineSegment(Vector(2, 1.25, 0), Vector(-2, 1.25, 0)),
    Part.LineSegment(Vector(-2, 1.25, 0), Vector(-2, 1.9, 0)),
    Part.ArcOfCircle(Part.Circle(Vector(-2.1, 1.9, 0), Vector(0, 0, 1), 0.1), math.radians(0), math.radians(90)),
    Part.LineSegment(Vector(-2.1, 2, 0), Vector(-13.2, 2, 0)),
    Part.ArcOfCircle(Part.Circle(Vector(-13.2, 2.3, 0), Vector(0, 0, 1), 0.3), math.radians(180), math.radians(270)),
    Part.LineSegment(Vector(-13.5, 2.3, 0), Vector(-13.5, 0, 0)),
], False)
sketch11.addConstraint([
    Sketcher.Constraint("Coincident", 0, 2, 1, 1),
    Sketcher.Constraint("Tangent", 1, 2, 2, 2),
    Sketcher.Constraint("Tangent", 2, 1, 3, 1),
    Sketcher.Constraint("Tangent", 3, 2, 4, 1),
    Sketcher.Constraint("Tangent", 4, 2, 5, 1),
    Sketcher.Constraint("Coincident", 5, 2, 6, 1),
    Sketcher.Constraint("Coincident", 6, 2, 7, 1),
    Sketcher.Constraint("Tangent", 7, 2, 8, 1),
    Sketcher.Constraint("Tangent", 8, 2, 9, 1),
    Sketcher.Constraint("Tangent", 9, 2, 10, 2),
    Sketcher.Constraint("Tangent", 10, 1, 11, 1),
    Sketcher.Constraint("Coincident", 11, 2, 0, 1),
    Sketcher.Constraint("Horizontal", 0),
    Sketcher.Constraint("Vertical", 1),
    Sketcher.Constraint("Horizontal", 3),
    Sketcher.Constraint("Vertical", 5),
    Sketcher.Constraint("Horizontal", 6),
    Sketcher.Constraint("Vertical", 7),
    Sketcher.Constraint("Horizontal", 9),
    Sketcher.Constraint("Vertical", 11),
    Sketcher.Constraint("Equal", 4, 8),
    Sketcher.Constraint("Equal", 2, 10),
    Sketcher.Constraint("Symmetric", 0, 2, 11, 2, -1, 1),
    Sketcher.Constraint("Symmetric", 4, 3, 8, 3, -2),
    Sketcher.Constraint("Radius", 2, Q("0.3 mm")),
    Sketcher.Constraint("Radius", 4, Q("0.1 mm")),
    Sketcher.Constraint("DistanceX", 0, 1, 0, 2, Q("27 mm")),
    Sketcher.Constraint("DistanceX", 6, 2, 6, 1, Q("4 mm")),
    Sketcher.Constraint("DistanceY", 1, 1, 1, 2, Q("2.3 mm")),
    Sketcher.Constraint("DistanceY", 5, 2, 5, 1, Q("0.65 mm")),
])
groove = body.newObject("PartDesign::Groove", "Groove")
groove.Profile = sketch11
groove.ReferenceAxis = (sketch11, ["H_Axis"])
groove.Angle = 360

sketch12 = body.newObject("Sketcher::SketchObject", "Sketch011")
sketch12.AttachmentSupport = (doc.getObject("YZ_Plane"), [""])
sketch12.MapMode = "FlatFace"
sketch12.addGeometry([
    Part.LineSegment(Vector(0, 13.5, 0), Vector(0, -13.5, 0)),
    Part.LineSegment(Vector(0, -13.5, 0), Vector(2.3, -13.5, 0)),
    Part.ArcOfCircle(Part.Circle(Vector(2.3, -13.2, 0), Vector(0, 0, 1), 0.3), math.radians(180), math.radians(270)),
    Part.LineSegment(Vector(2, -13.2, 0), Vector(2, -2.1, 0)),
    Part.ArcOfCircle(Part.Circle(Vector(1.9, -2.1, 0), Vector(0, 0, 1), 0.1), math.radians(0), math.radians(90)),
    Part.LineSegment(Vector(1.9, -2, 0), Vector(1.45, -2, 0)),
    Part.LineSegment(Vector(1.45, -2, 0), Vector(1.45, 2, 0)),
    Part.LineSegment(Vector(1.45, 2, 0), Vector(1.9, 2, 0)),
    Part.ArcOfCircle(Part.Circle(Vector(1.9, 2.1, 0), Vector(0, 0, 1), 0.1), math.radians(-90), math.radians(0)),
    Part.LineSegment(Vector(2, 2.1, 0), Vector(2, 13.2, 0)),
    Part.ArcOfCircle(Part.Circle(Vector(2.3, 13.2, 0), Vector(0, 0, 1), 0.3), math.radians(90), math.radians(180)),
    Part.LineSegment(Vector(2.3, 13.5, 0), Vector(0, 13.5, 0)),
], False)
sketch12.addConstraint([
    Sketcher.Constraint("Coincident", 0, 2, 1, 1),
    Sketcher.Constraint("Tangent", 1, 2, 2, 2),
    Sketcher.Constraint("Tangent", 2, 1, 3, 1),
    Sketcher.Constraint("Tangent", 3, 2, 4, 1),
    Sketcher.Constraint("Tangent", 4, 2, 5, 1),
    Sketcher.Constraint("Coincident", 5, 2, 6, 1),
    Sketcher.Constraint("Coincident", 6, 2, 7, 1),
    Sketcher.Constraint("Tangent", 7, 2, 8, 1),
    Sketcher.Constraint("Tangent", 8, 2, 9, 1),
    Sketcher.Constraint("Tangent", 9, 2, 10, 2),
    Sketcher.Constraint("Tangent", 10, 1, 11, 1),
    Sketcher.Constraint("Coincident", 11, 2, 0, 1),
    Sketcher.Constraint("Vertical", 0),
    Sketcher.Constraint("Horizontal", 1),
    Sketcher.Constraint("Vertical", 3),
    Sketcher.Constraint("Horizontal", 5),
    Sketcher.Constraint("Vertical", 6),
    Sketcher.Constraint("Horizontal", 7),
    Sketcher.Constraint("Vertical", 9),
    Sketcher.Constraint("Horizontal", 11),
    Sketcher.Constraint("Equal", 4, 8),
    Sketcher.Constraint("Equal", 2, 10),
    Sketcher.Constraint("Symmetric", 0, 2, 11, 2, -1, 1),
    Sketcher.Constraint("Symmetric", 4, 3, 8, 3, -1),
    Sketcher.Constraint("Radius", 2, Q("0.3 mm")),
    Sketcher.Constraint("Radius", 4, Q("0.1 mm")),
    Sketcher.Constraint("DistanceY", 0, 2, 0, 1, Q("27 mm")),
    Sketcher.Constraint("DistanceY", 6, 1, 6, 2, Q("4 mm")),
    Sketcher.Constraint("DistanceX", 1, 1, 1, 2, Q("2.3 mm")),
    Sketcher.Constraint("DistanceX", 5, 2, 5, 1, Q("0.45 mm")),
])
groove2 = body.newObject("PartDesign::Groove", "Groove001")
groove2.Profile = sketch12
groove2.ReferenceAxis = (sketch12, ["V_Axis"])
groove2.Angle = 360

doc.recompute()
